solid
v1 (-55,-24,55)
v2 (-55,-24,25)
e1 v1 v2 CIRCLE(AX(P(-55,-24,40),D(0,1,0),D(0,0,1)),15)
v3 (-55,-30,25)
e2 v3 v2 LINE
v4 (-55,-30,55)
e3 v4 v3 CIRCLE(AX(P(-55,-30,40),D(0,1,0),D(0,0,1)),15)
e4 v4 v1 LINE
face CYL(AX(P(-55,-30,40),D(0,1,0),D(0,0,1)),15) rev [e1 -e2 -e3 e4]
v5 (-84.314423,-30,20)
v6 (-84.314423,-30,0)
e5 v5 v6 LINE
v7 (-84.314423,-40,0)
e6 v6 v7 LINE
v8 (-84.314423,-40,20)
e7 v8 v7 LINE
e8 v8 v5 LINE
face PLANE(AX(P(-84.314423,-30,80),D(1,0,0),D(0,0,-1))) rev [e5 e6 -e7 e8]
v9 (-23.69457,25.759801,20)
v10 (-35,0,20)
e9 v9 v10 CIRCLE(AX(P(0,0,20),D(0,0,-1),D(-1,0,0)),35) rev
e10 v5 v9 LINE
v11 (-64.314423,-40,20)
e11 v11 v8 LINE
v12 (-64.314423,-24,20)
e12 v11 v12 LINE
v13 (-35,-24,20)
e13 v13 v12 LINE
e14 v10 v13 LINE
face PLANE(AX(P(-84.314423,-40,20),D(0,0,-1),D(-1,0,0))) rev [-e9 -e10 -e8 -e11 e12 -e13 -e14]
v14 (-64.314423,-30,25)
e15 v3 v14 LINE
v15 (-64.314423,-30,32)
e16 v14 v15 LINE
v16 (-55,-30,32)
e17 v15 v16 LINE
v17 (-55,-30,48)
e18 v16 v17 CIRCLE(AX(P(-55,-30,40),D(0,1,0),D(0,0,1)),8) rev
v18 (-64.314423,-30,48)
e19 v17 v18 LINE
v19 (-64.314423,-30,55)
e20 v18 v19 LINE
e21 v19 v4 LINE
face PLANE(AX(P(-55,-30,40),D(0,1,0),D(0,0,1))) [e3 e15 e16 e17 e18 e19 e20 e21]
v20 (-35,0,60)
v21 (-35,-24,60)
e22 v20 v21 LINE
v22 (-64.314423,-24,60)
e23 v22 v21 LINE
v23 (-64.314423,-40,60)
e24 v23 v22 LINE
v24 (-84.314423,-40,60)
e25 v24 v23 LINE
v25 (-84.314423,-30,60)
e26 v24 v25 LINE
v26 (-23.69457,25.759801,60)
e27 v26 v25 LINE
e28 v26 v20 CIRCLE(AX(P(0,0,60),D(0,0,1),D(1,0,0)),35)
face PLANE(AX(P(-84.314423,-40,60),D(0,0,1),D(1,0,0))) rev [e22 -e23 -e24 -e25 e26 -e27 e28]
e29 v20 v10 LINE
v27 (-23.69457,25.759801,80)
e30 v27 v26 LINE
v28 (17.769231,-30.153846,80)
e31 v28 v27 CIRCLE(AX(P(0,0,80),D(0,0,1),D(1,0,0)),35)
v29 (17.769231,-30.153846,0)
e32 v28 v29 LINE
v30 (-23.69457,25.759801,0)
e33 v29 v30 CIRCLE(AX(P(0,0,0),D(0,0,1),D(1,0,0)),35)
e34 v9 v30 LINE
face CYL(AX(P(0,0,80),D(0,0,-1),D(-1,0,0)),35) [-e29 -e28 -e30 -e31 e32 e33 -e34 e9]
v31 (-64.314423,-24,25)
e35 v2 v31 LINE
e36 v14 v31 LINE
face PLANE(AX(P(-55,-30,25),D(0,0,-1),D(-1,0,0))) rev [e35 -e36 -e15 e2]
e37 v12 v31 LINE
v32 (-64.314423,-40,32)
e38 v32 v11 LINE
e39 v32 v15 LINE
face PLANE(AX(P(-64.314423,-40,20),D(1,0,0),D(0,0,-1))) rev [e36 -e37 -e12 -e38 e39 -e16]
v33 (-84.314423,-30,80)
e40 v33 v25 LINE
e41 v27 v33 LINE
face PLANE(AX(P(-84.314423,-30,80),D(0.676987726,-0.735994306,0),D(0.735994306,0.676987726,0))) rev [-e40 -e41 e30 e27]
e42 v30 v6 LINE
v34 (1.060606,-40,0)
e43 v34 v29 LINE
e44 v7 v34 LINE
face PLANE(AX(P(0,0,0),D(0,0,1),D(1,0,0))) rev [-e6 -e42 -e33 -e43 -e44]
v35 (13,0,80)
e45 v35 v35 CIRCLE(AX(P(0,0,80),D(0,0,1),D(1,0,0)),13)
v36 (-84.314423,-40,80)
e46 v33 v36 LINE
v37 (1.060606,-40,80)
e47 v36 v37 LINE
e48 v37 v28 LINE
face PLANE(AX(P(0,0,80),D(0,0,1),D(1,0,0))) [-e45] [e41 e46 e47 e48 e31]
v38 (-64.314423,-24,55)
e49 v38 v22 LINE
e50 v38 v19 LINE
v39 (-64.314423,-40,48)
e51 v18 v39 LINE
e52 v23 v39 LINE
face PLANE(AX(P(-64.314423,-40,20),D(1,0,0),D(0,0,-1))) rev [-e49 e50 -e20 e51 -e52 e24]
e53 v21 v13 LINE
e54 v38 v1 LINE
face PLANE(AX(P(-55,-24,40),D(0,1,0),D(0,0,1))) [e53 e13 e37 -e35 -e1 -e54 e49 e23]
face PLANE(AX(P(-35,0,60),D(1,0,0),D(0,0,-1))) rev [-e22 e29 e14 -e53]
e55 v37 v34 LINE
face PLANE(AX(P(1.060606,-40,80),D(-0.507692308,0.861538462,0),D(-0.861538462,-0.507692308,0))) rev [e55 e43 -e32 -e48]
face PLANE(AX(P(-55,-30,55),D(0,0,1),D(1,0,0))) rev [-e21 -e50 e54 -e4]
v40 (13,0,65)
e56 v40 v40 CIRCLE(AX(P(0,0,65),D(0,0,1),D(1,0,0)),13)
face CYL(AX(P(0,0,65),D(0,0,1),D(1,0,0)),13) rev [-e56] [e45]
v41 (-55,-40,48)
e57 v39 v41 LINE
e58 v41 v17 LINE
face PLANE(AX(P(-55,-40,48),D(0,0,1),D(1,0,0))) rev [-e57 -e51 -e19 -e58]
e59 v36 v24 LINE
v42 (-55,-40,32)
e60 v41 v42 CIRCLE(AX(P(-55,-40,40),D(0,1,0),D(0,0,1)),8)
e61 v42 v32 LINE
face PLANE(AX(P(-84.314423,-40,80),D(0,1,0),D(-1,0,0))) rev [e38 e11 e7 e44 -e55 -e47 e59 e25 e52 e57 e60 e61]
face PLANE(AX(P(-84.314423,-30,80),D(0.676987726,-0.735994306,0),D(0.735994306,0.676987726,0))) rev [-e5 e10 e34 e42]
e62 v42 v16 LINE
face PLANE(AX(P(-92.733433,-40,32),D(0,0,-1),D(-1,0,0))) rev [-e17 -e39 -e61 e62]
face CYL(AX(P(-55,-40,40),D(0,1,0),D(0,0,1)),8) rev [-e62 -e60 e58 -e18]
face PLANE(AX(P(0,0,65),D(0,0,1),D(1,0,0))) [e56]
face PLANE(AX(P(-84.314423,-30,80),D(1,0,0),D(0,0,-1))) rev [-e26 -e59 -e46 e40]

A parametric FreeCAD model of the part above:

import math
import FreeCAD as App
import Part
import Sketcher

V = App.Vector
Q = App.Units.Quantity


def add_polygon(sketch, points):
    """Adds a closed chain of lines whose ends are joined by coincident constraints."""
    first, n = sketch.GeometryCount, len(points)
    for a, b in zip(points, points[1:] + points[:1]):
        sketch.addGeometry(Part.LineSegment(App.Vector(*a, 0), App.Vector(*b, 0)), False)
    for i in range(n):
        sketch.addConstraint(Sketcher.Constraint("Coincident", first + i, 2, first + (i + 1) % n, 1))

doc = App.newDocument("Part")
body = doc.addObject("PartDesign::Body", "Body")

# Sketch on XY plane
sketch1 = body.newObject("Sketcher::SketchObject", "Sketch")
sketch1.AttachmentSupport = (doc.getObject("XY_Plane"), [""])
sketch1.MapMode = "FlatFace"
sketch1.addGeometry(Part.LineSegment(V(-24, 26, 0), V(-84, -30, 0)), False)
sketch1.addGeometry(Part.LineSegment(V(-84, -30, 0), V(-84, -40, 0)), False)
sketch1.addGeometry(Part.LineSegment(V(-84, -40, 0), V(1, -40, 0)), False)
sketch1.addGeometry(Part.LineSegment(V(1, -40, 0), V(18, -30, 0)), False)
sketch1.addGeometry(Part.ArcOfCircle(Part.Circle(V(0, 0, 0), V(0, 0, 1), 35), math.radians(-59), math.radians(133)), False)
sketch1.addConstraint(Sketcher.Constraint("Coincident", 0, 2, 1, 1))
sketch1.addConstraint(Sketcher.Constraint("Coincident", 1, 2, 2, 1))
sketch1.addConstraint(Sketcher.Constraint("Coincident", 2, 2, 3, 1))
sketch1.addConstraint(Sketcher.Constraint("Tangent", 3, 2, 4, 1))
sketch1.addConstraint(Sketcher.Constraint("Tangent", 4, 2, 0, 1))
sketch1.addConstraint(Sketcher.Constraint("Vertical", 1))
sketch1.addConstraint(Sketcher.Constraint("Horizontal", 2))
sketch1.addConstraint(Sketcher.Constraint("Coincident", 4, 3, -1, 1))
sketch1.addConstraint(Sketcher.Constraint("Radius", 4, Q("35 mm")))
sketch1.addConstraint(Sketcher.Constraint("DistanceY", 1, 2, 1, 1, Q("10 mm")))
sketch1.addConstraint(Sketcher.Constraint("DistanceY", 0, 2, -1, 1, Q("30 mm")))
sketch1.addConstraint(Sketcher.Constraint("DistanceX", 2, 1, 2, 2, Q("85.375029 mm")))
sketch1.addConstraint(Sketcher.Constraint("DistanceY", -1, 1, 4, 2, Q("25.759801 mm")))
pad1 = body.newObject("PartDesign::Pad", "Pad")
pad1.Profile = sketch1
pad1.Length = 80

# Sketch on XY plane
sketch2 = body.newObject("Sketcher::SketchObject", "Sketch001")
sketch2.AttachmentSupport = (doc.getObject("XY_Plane"), [""])
sketch2.MapMode = "FlatFace"
sketch2.addGeometry(Part.Circle(V(0, 0, 0), V(0, 0, 1), 13), False)
sketch2.addConstraint(Sketcher.Constraint("Coincident", 0, 3, -1, 1))
sketch2.addConstraint(Sketcher.Constraint("Diameter", 0, Q("26 mm")))
pocket1 = body.newObject("PartDesign::Pocket", "Pocket")
pocket1.Profile = sketch2
pocket1.Length = 15
pocket1.Reversed = True

# Sketch on XY plane
sketch3 = body.newObject("Sketcher::SketchObject", "Sketch002")
sketch3.AttachmentSupport = (doc.getObject("XY_Plane"), [""])
sketch3.MapMode = "FlatFace"
sketch3.AttachmentOffset = App.Placement(V(0, 0, 65), App.Rotation())
sketch3.addGeometry(Part.Circle(V(0, 0, 0), V(0, 0, 1), 13), False)
sketch3.addConstraint(Sketcher.Constraint("Coincident", 0, 3, -1, 1))
sketch3.addConstraint(Sketcher.Constraint("Diameter", 0, Q("26 mm")))
pocket2 = body.newObject("PartDesign::Pocket", "Pocket001")
pocket2.Profile = sketch3
pocket2.Length = 15
pocket2.Reversed = True

# Sketch on XZ plane
sketch4 = body.newObject("Sketcher::SketchObject", "Sketch003")
sketch4.AttachmentSupport = (doc.getObject("XZ_Plane"), [""])
sketch4.MapMode = "FlatFace"
add_polygon(sketch4, [(-84, 20), (-84, 60), (-64, 60), (-64, 20)])  # lines 0-3
sketch4.addConstraint(Sketcher.Constraint("Vertical", 0))
sketch4.addConstraint(Sketcher.Constraint("Horizontal", 1))
sketch4.addConstraint(Sketcher.Constraint("Vertical", 2))
sketch4.addConstraint(Sketcher.Constraint("Horizontal", 3))
sketch4.addConstraint(Sketcher.Constraint("DistanceX", 1, 1, 1, 2, Q("20 mm")))
sketch4.addConstraint(Sketcher.Constraint("DistanceY", 0, 1, 0, 2, Q("40 mm")))
sketch4.addConstraint(Sketcher.Constraint("DistanceY", -1, 1, 0, 2, Q("60 mm")))
sketch4.addConstraint(Sketcher.Constraint("DistanceX", 0, 2, -1, 1, Q("84.314423 mm")))
pocket3 = body.newObject("PartDesign::Pocket", "Pocket002")
pocket3.Profile = sketch4
pocket3.Type = "ThroughAll"
pocket3.Midplane = True

# Sketch on XZ plane
sketch5 = body.newObject("Sketcher::SketchObject", "Sketch004")
sketch5.AttachmentSupport = (doc.getObject("XZ_Plane"), [""])
sketch5.MapMode = "FlatFace"
sketch5.addGeometry(Part.LineSegment(V(-55, 25, 0), V(-84, 25, 0)), False)
sketch5.addGeometry(Part.LineSegment(V(-84, 25, 0), V(-84, 55, 0)), False)
sketch5.addGeometry(Part.LineSegment(V(-84, 55, 0), V(-55, 55, 0)), False)
sketch5.addGeometry(Part.ArcOfCircle(Part.Circle(V(-55, 40, 0), V(0, 0, 1), 15), math.radians(-90), math.radians(90)), False)
sketch5.addConstraint(Sketcher.Constraint("Coincident", 0, 2, 1, 1))
sketch5.addConstraint(Sketcher.Constraint("Coincident", 1, 2, 2, 1))
sketch5.addConstraint(Sketcher.Constraint("Tangent", 2, 2, 3, 2))
sketch5.addConstraint(Sketcher.Constraint("Tangent", 3, 1, 0, 1))
sketch5.addConstraint(Sketcher.Constraint("Horizontal", 0))
sketch5.addConstraint(Sketcher.Constraint("Vertical", 1))
sketch5.addConstraint(Sketcher.Constraint("Horizontal", 2))
sketch5.addConstraint(Sketcher.Constraint("Radius", 3, Q("15 mm")))
sketch5.addConstraint(Sketcher.Constraint("DistanceX", 3, 3, -1, 1, Q("55 mm")))
sketch5.addConstraint(Sketcher.Constraint("DistanceY", -1, 1, 3, 3, Q("40 mm")))
sketch5.addConstraint(Sketcher.Constraint("DistanceX", 0, 2, 0, 1, Q("29.314423 mm")))
pocket4 = body.newObject("PartDesign::Pocket", "Pocket003")
pocket4.Profile = sketch5
pocket4.Type = "TwoLengths"
pocket4.Length = 123.918354
pocket4.Length2 = 24

# Sketch on XZ plane
sketch6 = body.newObject("Sketcher::SketchObject", "Sketch005")
sketch6.AttachmentSupport = (doc.getObject("XZ_Plane"), [""])
sketch6.MapMode = "FlatFace"
sketch6.AttachmentOffset = App.Placement(V(0, 0, 24), App.Rotation())
sketch6.addGeometry(Part.LineSegment(V(-93, 48, 0), V(-55, 48, 0)), False)
sketch6.addGeometry(Part.ArcOfCircle(Part.Circle(V(-55, 40, 0), V(0, 0, 1), 8), math.radians(-90), math.radians(90)), False)
sketch6.addGeometry(Part.LineSegment(V(-55, 32, 0), V(-93, 32, 0)), False)
sketch6.addGeometry(Part.LineSegment(V(-93, 32, 0), V(-93, 48, 0)), False)
sketch6.addConstraint(Sketcher.Constraint("Tangent", 0, 2, 1, 2))
sketch6.addConstraint(Sketcher.Constraint("Tangent", 1, 1, 2, 1))
sketch6.addConstraint(Sketcher.Constraint("Coincident", 2, 2, 3, 1))
sketch6.addConstraint(Sketcher.Constraint("Coincident", 3, 2, 0, 1))
sketch6.addConstraint(Sketcher.Constraint("Horizontal", 0))
sketch6.addConstraint(Sketcher.Constraint("Horizontal", 2))
sketch6.addConstraint(Sketcher.Constraint("Vertical", 3))
sketch6.addConstraint(Sketcher.Constraint("Radius", 1, Q("8 mm")))
sketch6.addConstraint(Sketcher.Constraint("DistanceX", 1, 3, -1, 1, Q("55 mm")))
sketch6.addConstraint(Sketcher.Constraint("DistanceY", -1, 1, 1, 3, Q("40 mm")))
sketch6.addConstraint(Sketcher.Constraint("DistanceX", 0, 1, 0, 2, Q("37.733433 mm")))
pocket5 = body.newObject("PartDesign::Pocket", "Pocket004")
pocket5.Profile = sketch6
pocket5.Type = "ThroughAll"
pocket5.Reversed = True

# Sketch on XZ plane
sketch7 = body.newObject("Sketcher::SketchObject", "Sketch006")
sketch7.AttachmentSupport = (doc.getObject("XZ_Plane"), [""])
sketch7.MapMode = "FlatFace"
add_polygon(sketch7, [(-64, 20), (-64, 60), (-34, 60), (-34, 20)])  # lines 0-3
sketch7.addConstraint(Sketcher.Constraint("Vertical", 0))
sketch7.addConstraint(Sketcher.Constraint("Horizontal", 1))
sketch7.addConstraint(Sketcher.Constraint("Vertical", 2))
sketch7.addConstraint(Sketcher.Constraint("Horizontal", 3))
sketch7.addConstraint(Sketcher.Constraint("DistanceX", 1, 1, 1, 2, Q("30 mm")))
sketch7.addConstraint(Sketcher.Constraint("DistanceY", 0, 1, 0, 2, Q("40 mm")))
sketch7.addConstraint(Sketcher.Constraint("DistanceY", -1, 1, 0, 2, Q("60 mm")))
sketch7.addConstraint(Sketcher.Constraint("DistanceX", 0, 2, -1, 1, Q("64.314423 mm")))
pocket6 = body.newObject("PartDesign::Pocket", "Pocket005")
pocket6.Profile = sketch7
pocket6.Type = "TwoLengths"
pocket6.Length = 32
pocket6.Length2 = 24

# Sketch on XZ plane
sketch8 = body.newObject("Sketcher::SketchObject", "Sketch007")
sketch8.AttachmentSupport = (doc.getObject("XZ_Plane"), [""])
sketch8.MapMode = "FlatFace"
sketch8.AttachmentOffset = App.Placement(V(0, 0, 24), App.Rotation())
sketch8.addGeometry(Part.LineSegment(V(-55, 25, 0), V(-82, 25, 0)), False)
sketch8.addGeometry(Part.LineSegment(V(-82, 25, 0), V(-82, 55, 0)), False)
sketch8.addGeometry(Part.LineSegment(V(-82, 55, 0), V(-55, 55, 0)), False)
sketch8.addGeometry(Part.ArcOfCircle(Part.Circle(V(-55, 40, 0), V(0, 0, 1), 15), math.radians(-90), math.radians(90)), False)
sketch8.addConstraint(Sketcher.Constraint("Coincident", 0, 2, 1, 1))
sketch8.addConstraint(Sketcher.Constraint("Coincident", 1, 2, 2, 1))
sketch8.addConstraint(Sketcher.Constraint("Tangent", 2, 2, 3, 2))
sketch8.addConstraint(Sketcher.Constraint("Tangent", 3, 1, 0, 1))
sketch8.addConstraint(Sketcher.Constraint("Horizontal", 0))
sketch8.addConstraint(Sketcher.Constraint("Vertical", 1))
sketch8.addConstraint(Sketcher.Constraint("Horizontal", 2))
sketch8.addConstraint(Sketcher.Constraint("Radius", 3, Q("15 mm")))
sketch8.addConstraint(Sketcher.Constraint("DistanceX", 3, 3, -1, 1, Q("55 mm")))
sketch8.addConstraint(Sketcher.Constraint("DistanceY", -1, 1, 3, 3, Q("40 mm")))
sketch8.addConstraint(Sketcher.Constraint("DistanceX", 0, 2, 0, 1, Q("26.861005 mm")))
pocket7 = body.newObject("PartDesign::Pocket", "Pocket006")
pocket7.Profile = sketch8
pocket7.Length = 6
pocket7.Reversed = True

# Sketch on XZ plane
sketch9 = body.newObject("Sketcher::SketchObject", "Sketch008")
sketch9.AttachmentSupport = (doc.getObject("XZ_Plane"), [""])
sketch9.MapMode = "FlatFace"
sketch9.AttachmentOffset = App.Placement(V(0, 0, 24), App.Rotation())
add_polygon(sketch9, [(-34, 20), (-34, 60), (-24, 60), (-24, 20)])  # lines 0-3
sketch9.addConstraint(Sketcher.Constraint("Vertical", 0))
sketch9.addConstraint(Sketcher.Constraint("Horizontal", 1))
sketch9.addConstraint(Sketcher.Constraint("Vertical", 2))
sketch9.addConstraint(Sketcher.Constraint("Horizontal", 3))
sketch9.addConstraint(Sketcher.Constraint("DistanceY", 0, 1, 0, 2, Q("40 mm")))
sketch9.addConstraint(Sketcher.Constraint("DistanceY", -1, 1, 0, 2, Q("60 mm")))
sketch9.addConstraint(Sketcher.Constraint("DistanceX", 1, 1, 1, 2, Q("10.619852 mm")))
sketch9.addConstraint(Sketcher.Constraint("DistanceX", 1, 2, -1, 1, Q("23.69457 mm")))
pocket8 = body.newObject("PartDesign::Pocket", "Pocket007")
pocket8.Profile = sketch9
pocket8.Length = 71

# Sketch on XY plane
sketch10 = body.newObject("Sketcher::SketchObject", "Sketch009")
sketch10.AttachmentSupport = (doc.getObject("XY_Plane"), [""])
sketch10.MapMode = "FlatFace"
sketch10.addGeometry(Part.LineSegment(V(-35, 0, 0), V(-35, -24, 0)), False)
sketch10.addGeometry(Part.LineSegment(V(-35, -24, 0), V(-25, -24, 0)), False)
sketch10.addGeometry(Part.ArcOfCircle(Part.Circle(V(0, 0, 0), V(0, 0, 1), 35), math.radians(-137), math.radians(180)), False)
sketch10.addConstraint(Sketcher.Constraint("Coincident", 0, 2, 1, 1))
sketch10.addConstraint(Sketcher.Constraint("Coincident", 1, 2, 2, 1))
sketch10.addConstraint(Sketcher.Constraint("Tangent", 2, 2, 0, 1))
sketch10.addConstraint(Sketcher.Constraint("Vertical", 0))
sketch10.addConstraint(Sketcher.Constraint("Horizontal", 1))
sketch10.addConstraint(Sketcher.Constraint("Coincident", 2, 3, -1, 1))
sketch10.addConstraint(Sketcher.Constraint("Radius", 2, Q("35 mm")))
sketch10.addConstraint(Sketcher.Constraint("DistanceY", 0, 2, 0, 1, Q("24 mm")))
pad2 = body.newObject("PartDesign::Pad", "Pad001")
pad2.Profile = sketch10
pad2.Length = 60

doc.recompute()
